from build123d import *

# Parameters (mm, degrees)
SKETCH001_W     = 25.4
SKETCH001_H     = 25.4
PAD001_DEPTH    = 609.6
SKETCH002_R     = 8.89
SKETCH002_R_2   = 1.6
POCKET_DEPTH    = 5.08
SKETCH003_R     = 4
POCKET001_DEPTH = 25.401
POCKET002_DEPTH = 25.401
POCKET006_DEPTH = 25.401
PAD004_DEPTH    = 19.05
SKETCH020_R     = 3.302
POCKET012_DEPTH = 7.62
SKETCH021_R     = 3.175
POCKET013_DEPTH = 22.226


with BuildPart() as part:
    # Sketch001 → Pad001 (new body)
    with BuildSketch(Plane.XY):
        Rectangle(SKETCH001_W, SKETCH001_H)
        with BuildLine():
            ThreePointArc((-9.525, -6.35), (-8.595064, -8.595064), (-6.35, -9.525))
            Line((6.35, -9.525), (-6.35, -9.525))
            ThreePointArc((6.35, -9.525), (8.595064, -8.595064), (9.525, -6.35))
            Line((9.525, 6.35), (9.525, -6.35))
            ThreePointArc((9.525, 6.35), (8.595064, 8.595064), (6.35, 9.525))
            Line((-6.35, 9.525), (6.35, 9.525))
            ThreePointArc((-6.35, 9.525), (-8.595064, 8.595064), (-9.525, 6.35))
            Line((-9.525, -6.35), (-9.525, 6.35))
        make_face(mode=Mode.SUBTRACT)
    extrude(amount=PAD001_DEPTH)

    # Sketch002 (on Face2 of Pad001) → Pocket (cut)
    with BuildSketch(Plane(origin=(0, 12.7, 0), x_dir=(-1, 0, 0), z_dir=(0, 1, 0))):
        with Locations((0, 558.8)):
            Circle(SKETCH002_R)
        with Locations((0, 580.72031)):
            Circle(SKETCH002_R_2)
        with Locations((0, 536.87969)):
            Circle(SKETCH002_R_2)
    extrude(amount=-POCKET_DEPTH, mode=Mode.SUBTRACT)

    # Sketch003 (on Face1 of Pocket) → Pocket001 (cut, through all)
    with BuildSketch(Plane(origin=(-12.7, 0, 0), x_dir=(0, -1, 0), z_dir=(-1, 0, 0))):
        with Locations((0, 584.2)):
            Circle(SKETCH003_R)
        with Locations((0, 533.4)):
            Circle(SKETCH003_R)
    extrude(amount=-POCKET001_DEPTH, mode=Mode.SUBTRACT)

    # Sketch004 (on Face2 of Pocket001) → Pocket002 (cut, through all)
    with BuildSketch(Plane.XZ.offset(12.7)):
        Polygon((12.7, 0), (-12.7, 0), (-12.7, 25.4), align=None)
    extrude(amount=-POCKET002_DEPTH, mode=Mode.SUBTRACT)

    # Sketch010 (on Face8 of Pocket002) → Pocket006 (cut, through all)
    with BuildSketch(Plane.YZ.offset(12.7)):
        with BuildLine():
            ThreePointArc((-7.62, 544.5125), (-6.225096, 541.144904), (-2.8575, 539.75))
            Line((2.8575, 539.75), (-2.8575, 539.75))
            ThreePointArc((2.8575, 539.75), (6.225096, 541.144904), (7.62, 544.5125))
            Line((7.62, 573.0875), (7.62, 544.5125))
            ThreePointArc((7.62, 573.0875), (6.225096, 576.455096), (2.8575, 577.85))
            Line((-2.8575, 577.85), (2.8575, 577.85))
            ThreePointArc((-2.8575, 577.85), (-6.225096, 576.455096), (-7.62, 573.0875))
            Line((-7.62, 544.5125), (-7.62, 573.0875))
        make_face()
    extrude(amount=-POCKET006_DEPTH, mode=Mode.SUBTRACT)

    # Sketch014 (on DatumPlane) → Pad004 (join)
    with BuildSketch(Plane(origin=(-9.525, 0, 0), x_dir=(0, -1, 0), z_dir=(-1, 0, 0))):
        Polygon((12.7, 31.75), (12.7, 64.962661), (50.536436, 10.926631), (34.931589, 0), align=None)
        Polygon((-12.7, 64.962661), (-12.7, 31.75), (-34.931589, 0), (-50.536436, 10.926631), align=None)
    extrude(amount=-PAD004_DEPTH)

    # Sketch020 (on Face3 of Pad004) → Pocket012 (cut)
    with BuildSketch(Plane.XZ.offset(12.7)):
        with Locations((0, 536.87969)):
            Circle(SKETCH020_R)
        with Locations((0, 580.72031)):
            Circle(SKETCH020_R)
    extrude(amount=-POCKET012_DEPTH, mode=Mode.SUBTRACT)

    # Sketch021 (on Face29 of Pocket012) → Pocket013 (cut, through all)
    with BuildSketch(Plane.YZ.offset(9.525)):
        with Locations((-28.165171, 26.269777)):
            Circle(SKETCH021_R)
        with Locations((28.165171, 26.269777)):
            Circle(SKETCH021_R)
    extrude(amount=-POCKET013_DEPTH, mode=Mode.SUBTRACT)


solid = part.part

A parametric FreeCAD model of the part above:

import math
import FreeCAD as App
import Part
import Sketcher
Q = App.Units.Quantity


def add_polygon(sketch, points):
    """Adds a closed chain of lines whose ends are joined by coincident constraints."""
    first, n = sketch.GeometryCount, len(points)
    for a, b in zip(points, points[1:] + points[:1]):
        sketch.addGeometry(Part.LineSegment(App.Vector(*a, 0), App.Vector(*b, 0)), False)
    for i in range(n):
        sketch.addConstraint(Sketcher.Constraint("Coincident", first + i, 2, first + (i + 1) % n, 1))

doc = App.newDocument("Part")
body = doc.addObject("PartDesign::Body", "Body")

# Sketch on XY plane
sketch1 = doc.addObject("Sketcher::SketchObject", "Sketch")
body.addObject(sketch1)
sketch1.AttachmentSupport = (doc.XY_Plane, [""])
sketch1.MapMode = "FlatFace"
add_polygon(sketch1, [(-12.7, 12.7), (-12.7, -12.7), (12.7, -12.7), (12.7, 12.7)])  # lines 0-3
sketch1.addGeometry(Part.ArcOfCircle(Part.Circle(App.Vector(-6.3, -6.3, 0), App.Vector(0, 0, 1), 3.2), math.radians(-180), math.radians(-90)), False)  # 4
sketch1.addGeometry(Part.LineSegment(App.Vector(-9.5, -6.3, 0), App.Vector(-9.5, 6.3, 0)), False)  # 5
sketch1.addGeometry(Part.ArcOfCircle(Part.Circle(App.Vector(-6.3, 6.3, 0), App.Vector(0, 0, 1), 3.2), math.radians(90), math.radians(180)), False)  # 6
sketch1.addGeometry(Part.LineSegment(App.Vector(-6.3, 9.5, 0), App.Vector(6.3, 9.5, 0)), False)  # 7
sketch1.addGeometry(Part.ArcOfCircle(Part.Circle(App.Vector(6.3, 6.3, 0), App.Vector(0, 0, 1), 3.2), math.radians(0), math.radians(90)), False)  # 8
sketch1.addGeometry(Part.LineSegment(App.Vector(9.5, 6.3, 0), App.Vector(9.5, -6.3, 0)), False)  # 9
sketch1.addGeometry(Part.ArcOfCircle(Part.Circle(App.Vector(6.3, -6.3, 0), App.Vector(0, 0, 1), 3.2), math.radians(-90), math.radians(0)), False)  # 10
sketch1.addGeometry(Part.LineSegment(App.Vector(6.3, -9.5, 0), App.Vector(-6.3, -9.5, 0)), False)  # 11
sketch1.addConstraint(Sketcher.Constraint("Tangent", 4, 1, 5, 1))
sketch1.addConstraint(Sketcher.Constraint("Tangent", 5, 2, 6, 2))
sketch1.addConstraint(Sketcher.Constraint("Tangent", 6, 1, 7, 1))
sketch1.addConstraint(Sketcher.Constraint("Tangent", 7, 2, 8, 2))
sketch1.addConstraint(Sketcher.Constraint("Tangent", 8, 1, 9, 1))
sketch1.addConstraint(Sketcher.Constraint("Tangent", 9, 2, 10, 2))
sketch1.addConstraint(Sketcher.Constraint("Tangent", 10, 1, 11, 1))
sketch1.addConstraint(Sketcher.Constraint("Tangent", 11, 2, 4, 2))
sketch1.addConstraint(Sketcher.Constraint("Vertical", 0))
sketch1.addConstraint(Sketcher.Constraint("Horizontal", 1))
sketch1.addConstraint(Sketcher.Constraint("Vertical", 2))
sketch1.addConstraint(Sketcher.Constraint("Horizontal", 3))
sketch1.addConstraint(Sketcher.Constraint("Vertical", 5))
sketch1.addConstraint(Sketcher.Constraint("Horizontal", 7))
sketch1.addConstraint(Sketcher.Constraint("Vertical", 9))
sketch1.addConstraint(Sketcher.Constraint("Horizontal", 11))
sketch1.addConstraint(Sketcher.Constraint("Equal", 4, 6))
sketch1.addConstraint(Sketcher.Constraint("Equal", 6, 8))
sketch1.addConstraint(Sketcher.Constraint("Equal", 8, 10))
sketch1.addConstraint(Sketcher.Constraint("Symmetric", 4, 3, 8, 3, -1, 1))
sketch1.addConstraint(Sketcher.Constraint("Symmetric", 0, 2, 2, 2, -1, 1))
sketch1.addConstraint(Sketcher.Constraint("Equal", 3, 0))
sketch1.addConstraint(Sketcher.Constraint("Equal", 11, 5))
sketch1.addConstraint(Sketcher.Constraint("DistanceX", 1, 1, 1, 2, Q("1 in")))
sketch1.addConstraint(Sketcher.Constraint("DistanceX", 7, 1, 7, 2, Q("0.5 in")))
sketch1.addConstraint(Sketcher.Constraint("Radius", 4, Q("0.125 in")))
pad1 = doc.addObject("PartDesign::Pad", "Pad")
body.addObject(pad1)
pad1.Profile = sketch1
pad1.Length = Q("24 in")

# Sketch on XZ plane
sketch2 = doc.addObject("Sketcher::SketchObject", "Sketch001")
body.addObject(sketch2)
sketch2.AttachmentSupport = (doc.XZ_Plane, [""])
sketch2.MapMode = "FlatFace"
sketch2.AttachmentOffset = App.Placement(App.Vector(0, 0, -0.5 * 25.4), App.Rotation())
sketch2.addGeometry(Part.Circle(App.Vector(0, 558.8, 0), App.Vector(0, 0, 1), 8.9), False)
sketch2.addGeometry(Part.Circle(App.Vector(0, 580.7, 0), App.Vector(0, 0, 1), 1.6), False)
sketch2.addGeometry(Part.Circle(App.Vector(0, 536.9, 0), App.Vector(0, 0, 1), 1.6), False)
sketch2.addConstraint(Sketcher.Constraint("Equal", 1, 2))
sketch2.addConstraint(Sketcher.Constraint("PointOnObject", 0, 3, -2))
sketch2.addConstraint(Sketcher.Constraint("PointOnObject", 1, 3, -2))
sketch2.addConstraint(Sketcher.Constraint("PointOnObject", 2, 3, -2))
sketch2.addConstraint(Sketcher.Constraint("Diameter", 0, Q("0.7 in")))
sketch2.addConstraint(Sketcher.Constraint("DistanceY", -1, 1, 0, 3, Q("22 in")))
sketch2.addConstraint(Sketcher.Constraint("Diameter", 1, Q("3.2 mm")))
sketch2.addConstraint(Sketcher.Constraint("DistanceY", -1, 1, 1, 3, Q("580.72031 mm")))
sketch2.addConstraint(Sketcher.Constraint("DistanceY", -1, 1, 2, 3, Q("536.87969 mm")))
pocket1 = doc.addObject("PartDesign::Pocket", "Pocket")
body.addObject(pocket1)
pocket1.Profile = sketch2
pocket1.Length = Q("0.2 in")
pocket1.Reversed = True

# Sketch on YZ plane
sketch3 = doc.addObject("Sketcher::SketchObject", "Sketch002")
body.addObject(sketch3)
sketch3.AttachmentSupport = (doc.YZ_Plane, [""])
sketch3.MapMode = "FlatFace"
sketch3.AttachmentOffset = App.Placement(App.Vector(0, 0, -0.5 * 25.4), App.Rotation())
sketch3.addGeometry(Part.Circle(App.Vector(0, 584.2, 0), App.Vector(0, 0, 1), 4), False)
sketch3.addGeometry(Part.Circle(App.Vector(0, 533.4, 0), App.Vector(0, 0, 1), 4), False)
sketch3.addConstraint(Sketcher.Constraint("Equal", 0, 1))
sketch3.addConstraint(Sketcher.Constraint("PointOnObject", 0, 3, -2))
sketch3.addConstraint(Sketcher.Constraint("PointOnObject", 1, 3, -2))
sketch3.addConstraint(Sketcher.Constraint("DistanceY", -1, 1, 0, 3, Q("23 in")))
sketch3.addConstraint(Sketcher.Constraint("DistanceY", -1, 1, 1, 3, Q("21 in")))
sketch3.addConstraint(Sketcher.Constraint("Diameter", 0, Q("8 mm")))
pocket2 = doc.addObject("PartDesign::Pocket", "Pocket001")
body.addObject(pocket2)
pocket2.Profile = sketch3
pocket2.Type = "ThroughAll"
pocket2.Reversed = True

# Sketch on XZ plane
sketch4 = doc.addObject("Sketcher::SketchObject", "Sketch003")
body.addObject(sketch4)
sketch4.AttachmentSupport = (doc.XZ_Plane, [""])
sketch4.MapMode = "FlatFace"
sketch4.AttachmentOffset = App.Placement(App.Vector(0, 0, 0.5 * 25.4), App.Rotation())
add_polygon(sketch4, [(-13, 0), (13, 0), (-13, 25)])  # lines 0-2
sketch4.addConstraint(Sketcher.Constraint("Horizontal", 0))
sketch4.addConstraint(Sketcher.Constraint("Vertical", 2))
sketch4.addConstraint(Sketcher.Constraint("Symmetric", 0, 2, 2, 2, -1, 1))
sketch4.addConstraint(Sketcher.Constraint("Equal", 0, 2))
sketch4.addConstraint(Sketcher.Constraint("DistanceX", 0, 1, 0, 2, Q("1 in")))
pocket3 = doc.addObject("PartDesign::Pocket", "Pocket002")
body.addObject(pocket3)
pocket3.Profile = sketch4
pocket3.Type = "ThroughAll"

# Sketch on YZ plane
sketch5 = doc.addObject("Sketcher::SketchObject", "Sketch004")
body.addObject(sketch5)
sketch5.AttachmentSupport = (doc.YZ_Plane, [""])
sketch5.MapMode = "FlatFace"
sketch5.AttachmentOffset = App.Placement(App.Vector(0, 0, 0.5 * 25.4), App.Rotation())
sketch5.addGeometry(Part.ArcOfCircle(Part.Circle(App.Vector(-2.9, 544.5, 0), App.Vector(0, 0, 1), 4.8), math.radians(-180), math.radians(-90)), False)
sketch5.addGeometry(Part.LineSegment(App.Vector(-2.9, 539.8, 0), App.Vector(2.9, 539.8, 0)), False)
sketch5.addGeometry(Part.ArcOfCircle(Part.Circle(App.Vector(2.9, 544.5, 0), App.Vector(0, 0, 1), 4.8), math.radians(-90), math.radians(0)), False)
sketch5.addGeometry(Part.LineSegment(App.Vector(7.6, 544.5, 0), App.Vector(7.6, 573.1, 0)), False)
sketch5.addGeometry(Part.ArcOfCircle(Part.Circle(App.Vector(2.9, 573.1, 0), App.Vector(0, 0, 1), 4.8), math.radians(0), math.radians(90)), False)
sketch5.addGeometry(Part.LineSegment(App.Vector(2.9, 577.9, 0), App.Vector(-2.9, 577.9, 0)), False)
sketch5.addGeometry(Part.ArcOfCircle(Part.Circle(App.Vector(-2.9, 573.1, 0), App.Vector(0, 0, 1), 4.8), math.radians(90), math.radians(180)), False)
sketch5.addGeometry(Part.LineSegment(App.Vector(-7.6, 573.1, 0), App.Vector(-7.6, 544.5, 0)), False)
sketch5.addConstraint(Sketcher.Constraint("Tangent", 0, 2, 1, 1))
sketch5.addConstraint(Sketcher.Constraint("Tangent", 1, 2, 2, 1))
sketch5.addConstraint(Sketcher.Constraint("Tangent", 2, 2, 3, 1))
sketch5.addConstraint(Sketcher.Constraint("Tangent", 3, 2, 4, 1))
sketch5.addConstraint(Sketcher.Constraint("Tangent", 4, 2, 5, 1))
sketch5.addConstraint(Sketcher.Constraint("Tangent", 5, 2, 6, 1))
sketch5.addConstraint(Sketcher.Constraint("Tangent", 6, 2, 7, 1))
sketch5.addConstraint(Sketcher.Constraint("Tangent", 7, 2, 0, 1))
sketch5.addConstraint(Sketcher.Constraint("Horizontal", 1))
sketch5.addConstraint(Sketcher.Constraint("Vertical", 3))
sketch5.addConstraint(Sketcher.Constraint("Horizontal", 5))
sketch5.addConstraint(Sketcher.Constraint("Vertical", 7))
sketch5.addConstraint(Sketcher.Constraint("Equal", 0, 2))
sketch5.addConstraint(Sketcher.Constraint("Equal", 2, 4))
sketch5.addConstraint(Sketcher.Constraint("Equal", 4, 6))
sketch5.addConstraint(Sketcher.Constraint("Radius", 0, Q("0.1875 in")))
sketch5.addConstraint(Sketcher.Constraint("DistanceX", -1, 1, 2, 2, Q("0.3 in")))
sketch5.addConstraint(Sketcher.Constraint("DistanceX", 6, 2, -1, 1, Q("0.3 in")))
sketch5.addConstraint(Sketcher.Constraint("DistanceY", 3, 1, 3, 2, Q("1.125 in")))
sketch5.addConstraint(Sketcher.Constraint("DistanceY", -1, 1, 0, 2, Q("21.25 in")))
pocket4 = doc.addObject("PartDesign::Pocket", "Pocket003")
body.addObject(pocket4)
pocket4.Profile = sketch5
pocket4.Type = "ThroughAll"

# Sketch on YZ plane
sketch6 = doc.addObject("Sketcher::SketchObject", "Sketch005")
body.addObject(sketch6)
sketch6.AttachmentSupport = (doc.YZ_Plane, [""])
sketch6.MapMode = "FlatFace"
sketch6.AttachmentOffset = App.Placement(App.Vector(0, 0, -0.375 * 25.4), App.Rotation())
add_polygon(sketch6, [(-13, 65), (-13, 32), (-35, 0), (-51, 11)])  # lines 0-3
add_polygon(sketch6, [(13, 32), (13, 65), (51, 11), (35, 0)])  # lines 4-7
sketch6.addConstraint(Sketcher.Constraint("Vertical", 0))
sketch6.addConstraint(Sketcher.Constraint("Vertical", 4))
sketch6.addConstraint(Sketcher.Constraint("Symmetric", 1, 2, 6, 2, -1, 1))
sketch6.addConstraint(Sketcher.Constraint("Symmetric", 3, 2, 4, 2, -2))
sketch6.addConstraint(Sketcher.Constraint("Symmetric", 2, 2, 5, 2, -2))
sketch6.addConstraint(Sketcher.Constraint("PointOnObject", 1, 2, -1))
sketch6.addConstraint(Sketcher.Constraint("Perpendicular", 1, 2))
sketch6.addConstraint(Sketcher.Constraint("Perpendicular", 2, 3))
sketch6.addConstraint(Sketcher.Constraint("Perpendicular", 6, 7))
sketch6.addConstraint(Sketcher.Constraint("Angle", 1, Q("-125 deg")))
sketch6.addConstraint(Sketcher.Constraint("DistanceX", 3, 2, 4, 2, Q("1 in")))
sketch6.addConstraint(Sketcher.Constraint("Distance", 2, Q("0.75 in")))
sketch6.addConstraint(Sketcher.Constraint("DistanceY", -1, 1, 0, 2, Q("1.25 in")))
pad2 = doc.addObject("PartDesign::Pad", "Pad001")
body.addObject(pad2)
pad2.Profile = sketch6
pad2.Length = Q("0.75 in")

# Sketch on XZ plane
sketch7 = doc.addObject("Sketcher::SketchObject", "Sketch006")
body.addObject(sketch7)
sketch7.AttachmentSupport = (doc.XZ_Plane, [""])
sketch7.MapMode = "FlatFace"
sketch7.AttachmentOffset = App.Placement(App.Vector(0, 0, 0.5 * 25.4), App.Rotation())
sketch7.addGeometry(Part.Circle(App.Vector(0, 536.9, 0), App.Vector(0, 0, 1), 3.3), False)
sketch7.addGeometry(Part.Circle(App.Vector(0, 580.7, 0), App.Vector(0, 0, 1), 3.3), False)
sketch7.addConstraint(Sketcher.Constraint("Equal", 0, 1))
sketch7.addConstraint(Sketcher.Constraint("PointOnObject", 0, 3, -2))
sketch7.addConstraint(Sketcher.Constraint("PointOnObject", 1, 3, -2))
sketch7.addConstraint(Sketcher.Constraint("Diameter", 0, Q("0.26 in")))
sketch7.addConstraint(Sketcher.Constraint("DistanceY", -1, 1, 0, 3, Q("536.87969 mm")))
sketch7.addConstraint(Sketcher.Constraint("DistanceY", -1, 1, 1, 3, Q("580.72031 mm")))
pocket5 = doc.addObject("PartDesign::Pocket", "Pocket004")
body.addObject(pocket5)
pocket5.Profile = sketch7
pocket5.Length = Q("0.3 in")

# Sketch on YZ plane
sketch8 = doc.addObject("Sketcher::SketchObject", "Sketch007")
body.addObject(sketch8)
sketch8.AttachmentSupport = (doc.YZ_Plane, [""])
sketch8.MapMode = "FlatFace"
sketch8.AttachmentOffset = App.Placement(App.Vector(0, 0, 0.375 * 25.4), App.Rotation())
sketch8.addGeometry(Part.Circle(App.Vector(-28.2, 26.3, 0), App.Vector(0, 0, 1), 3.2), False)
sketch8.addGeometry(Part.Circle(App.Vector(28.2, 26.3, 0), App.Vector(0, 0, 1), 3.2), False)
sketch8.addConstraint(Sketcher.Constraint("Equal", 0, 1))
sketch8.addConstraint(Sketcher.Constraint("Symmetric", 0, 3, 1, 3, -2))
sketch8.addConstraint(Sketcher.Constraint("Diameter", 0, Q("0.25 in")))
sketch8.addConstraint(Sketcher.Constraint("DistanceX", 0, 3, -1, 1, Q("28.165171 mm")))
sketch8.addConstraint(Sketcher.Constraint("DistanceY", -1, 1, 0, 3, Q("26.269777 mm")))
pocket6 = doc.addObject("PartDesign::Pocket", "Pocket005")
body.addObject(pocket6)
pocket6.Profile = sketch8
pocket6.Type = "ThroughAll"

doc.recompute()
